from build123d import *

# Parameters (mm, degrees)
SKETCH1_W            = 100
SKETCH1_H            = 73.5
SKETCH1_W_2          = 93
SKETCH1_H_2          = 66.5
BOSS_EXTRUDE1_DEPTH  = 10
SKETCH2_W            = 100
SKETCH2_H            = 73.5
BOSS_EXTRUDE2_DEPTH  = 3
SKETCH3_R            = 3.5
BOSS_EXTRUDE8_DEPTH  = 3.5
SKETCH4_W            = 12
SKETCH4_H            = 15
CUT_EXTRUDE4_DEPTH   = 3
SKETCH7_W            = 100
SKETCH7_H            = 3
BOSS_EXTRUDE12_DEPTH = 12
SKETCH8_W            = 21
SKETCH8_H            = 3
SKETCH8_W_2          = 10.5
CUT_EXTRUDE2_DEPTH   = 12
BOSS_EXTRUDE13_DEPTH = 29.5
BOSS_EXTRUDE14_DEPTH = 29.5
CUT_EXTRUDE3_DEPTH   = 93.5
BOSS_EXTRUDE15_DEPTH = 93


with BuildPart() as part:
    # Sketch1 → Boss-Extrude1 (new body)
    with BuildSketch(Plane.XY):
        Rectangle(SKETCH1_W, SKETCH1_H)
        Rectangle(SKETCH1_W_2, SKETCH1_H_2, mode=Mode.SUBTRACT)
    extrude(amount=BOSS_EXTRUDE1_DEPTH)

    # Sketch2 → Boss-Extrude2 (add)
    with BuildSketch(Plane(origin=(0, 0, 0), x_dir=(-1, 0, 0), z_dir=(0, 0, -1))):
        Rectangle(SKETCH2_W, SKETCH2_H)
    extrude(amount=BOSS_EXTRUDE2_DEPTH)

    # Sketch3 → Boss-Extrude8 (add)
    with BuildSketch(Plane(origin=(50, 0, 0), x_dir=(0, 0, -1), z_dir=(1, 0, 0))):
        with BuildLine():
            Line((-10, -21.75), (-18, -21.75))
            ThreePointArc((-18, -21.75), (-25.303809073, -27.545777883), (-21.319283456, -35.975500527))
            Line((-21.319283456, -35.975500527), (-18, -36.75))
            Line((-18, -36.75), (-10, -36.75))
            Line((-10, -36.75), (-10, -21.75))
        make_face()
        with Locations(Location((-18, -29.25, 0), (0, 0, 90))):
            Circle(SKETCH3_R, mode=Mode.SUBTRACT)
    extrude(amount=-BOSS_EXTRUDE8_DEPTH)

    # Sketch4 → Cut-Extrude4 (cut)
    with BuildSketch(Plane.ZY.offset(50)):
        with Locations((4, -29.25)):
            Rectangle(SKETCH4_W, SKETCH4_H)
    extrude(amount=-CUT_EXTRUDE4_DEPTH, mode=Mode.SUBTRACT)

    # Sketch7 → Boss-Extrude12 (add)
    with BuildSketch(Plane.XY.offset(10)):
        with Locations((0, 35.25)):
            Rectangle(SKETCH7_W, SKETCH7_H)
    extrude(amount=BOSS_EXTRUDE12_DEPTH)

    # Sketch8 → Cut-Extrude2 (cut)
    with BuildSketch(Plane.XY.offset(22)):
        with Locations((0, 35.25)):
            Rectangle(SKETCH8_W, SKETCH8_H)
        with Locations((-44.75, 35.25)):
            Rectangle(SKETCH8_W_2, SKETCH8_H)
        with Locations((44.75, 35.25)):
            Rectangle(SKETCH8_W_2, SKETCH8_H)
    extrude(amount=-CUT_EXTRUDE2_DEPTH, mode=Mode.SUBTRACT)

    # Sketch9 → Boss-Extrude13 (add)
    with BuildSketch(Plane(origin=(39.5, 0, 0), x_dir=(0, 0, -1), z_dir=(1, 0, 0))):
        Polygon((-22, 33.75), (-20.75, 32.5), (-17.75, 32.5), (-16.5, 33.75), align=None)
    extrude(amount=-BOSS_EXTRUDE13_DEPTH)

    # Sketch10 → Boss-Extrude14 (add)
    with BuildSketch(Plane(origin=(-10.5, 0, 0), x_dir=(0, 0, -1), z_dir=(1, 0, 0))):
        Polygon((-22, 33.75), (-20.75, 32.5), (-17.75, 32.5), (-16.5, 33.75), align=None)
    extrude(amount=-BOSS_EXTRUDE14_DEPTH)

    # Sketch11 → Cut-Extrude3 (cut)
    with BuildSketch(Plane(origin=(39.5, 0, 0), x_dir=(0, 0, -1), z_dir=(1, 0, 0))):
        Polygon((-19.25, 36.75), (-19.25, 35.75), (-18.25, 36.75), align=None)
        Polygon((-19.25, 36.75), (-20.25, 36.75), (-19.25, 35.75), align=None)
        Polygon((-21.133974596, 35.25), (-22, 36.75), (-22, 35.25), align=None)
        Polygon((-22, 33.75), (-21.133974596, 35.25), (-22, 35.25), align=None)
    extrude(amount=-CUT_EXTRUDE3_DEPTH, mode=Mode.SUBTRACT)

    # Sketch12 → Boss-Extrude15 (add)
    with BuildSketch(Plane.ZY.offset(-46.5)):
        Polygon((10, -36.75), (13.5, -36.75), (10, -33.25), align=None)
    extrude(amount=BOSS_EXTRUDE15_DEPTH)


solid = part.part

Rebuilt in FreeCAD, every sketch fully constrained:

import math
import FreeCAD as App
import Part
import Sketcher
from FreeCAD import Vector
Q = App.Units.Quantity

doc = App.newDocument("Part")
params = doc.addObject("Spreadsheet::Sheet", "Params")
for row, (alias, value) in enumerate([
    ("sketch1_width", "100 mm"),
    ("sketch1_width2", "93 mm"),
    ("sketch1_height", "73.5 mm"),
    ("sketch1_height2", "66.5 mm"),
    ("pad1_length", "10 mm"),
    ("sketch2_width", "100 mm"),
    ("sketch2_height", "73.5 mm"),
    ("pad2_length", "3 mm"),
    ("sketch3_diameter", "7 mm"),
    ("sketch3_radius", "7.5 mm"),
    ("sketch3_width", "15 mm"),
    ("sketch3_height", "8 mm"),
    ("pad3_length", "3.5 mm"),
    ("sketch4_width", "15 mm"),
    ("sketch4_height", "12 mm"),
    ("pocket1_length", "3 mm"),
    ("sketch5_width", "100 mm"),
    ("sketch5_height", "3 mm"),
    ("pad4_length", "12 mm"),
    ("sketch6_width", "21 mm"),
    ("sketch6_height", "3 mm"),
    ("sketch6_width2", "10.5 mm"),
    ("pocket2_length", "12 mm"),
    ("sketch7_height", "3 mm"),
    ("sketch7_height2", "5.5 mm"),
    ("pad5_length", "29.5 mm"),
    ("sketch8_height", "3 mm"),
    ("sketch8_height2", "5.5 mm"),
    ("pad6_length", "29.5 mm"),
    ("sketch9_width", "3 mm"),
    ("sketch9_height", "2 mm"),
    ("pocket3_length", "93.5 mm"),
    ("sketch10_width", "3.5 mm"),
    ("pad7_length", "93 mm"),
], start=1):
    params.set(f"A{row}", alias)
    params.set(f"B{row}", "=" + value)
    params.setAlias(f"B{row}", alias)

body = doc.addObject("PartDesign::Body", "Body")

# Sketch on XY plane
sketch1 = doc.addObject("Sketcher::SketchObject", "Sketch")
body.addObject(sketch1)
sketch1.AttachmentSupport = (doc.XY_Plane, [""])
sketch1.MapMode = "FlatFace"
sketch1.addGeometry(Part.LineSegment(Vector(-50, 37, 0), Vector(-50, -37, 0)), False)
sketch1.addGeometry(Part.LineSegment(Vector(-50, -37, 0), Vector(50, -37, 0)), False)
sketch1.addGeometry(Part.LineSegment(Vector(50, -37, 0), Vector(50, 37, 0)), False)
sketch1.addGeometry(Part.LineSegment(Vector(50, 37, 0), Vector(-50, 37, 0)), False)
sketch1.addGeometry(Part.LineSegment(Vector(46, -33, 0), Vector(-46, -33, 0)), False)
sketch1.addGeometry(Part.LineSegment(Vector(-46, -33, 0), Vector(-46, 33, 0)), False)
sketch1.addGeometry(Part.LineSegment(Vector(-46, 33, 0), Vector(46, 33, 0)), False)
sketch1.addGeometry(Part.LineSegment(Vector(46, 33, 0), Vector(46, -33, 0)), False)
sketch1.addConstraint(Sketcher.Constraint("Coincident", 0, 2, 1, 1))
sketch1.addConstraint(Sketcher.Constraint("Coincident", 1, 2, 2, 1))
sketch1.addConstraint(Sketcher.Constraint("Coincident", 2, 2, 3, 1))
sketch1.addConstraint(Sketcher.Constraint("Coincident", 3, 2, 0, 1))
sketch1.addConstraint(Sketcher.Constraint("Coincident", 4, 2, 5, 1))
sketch1.addConstraint(Sketcher.Constraint("Coincident", 5, 2, 6, 1))
sketch1.addConstraint(Sketcher.Constraint("Coincident", 6, 2, 7, 1))
sketch1.addConstraint(Sketcher.Constraint("Coincident", 7, 2, 4, 1))
sketch1.addConstraint(Sketcher.Constraint("Vertical", 0))
sketch1.addConstraint(Sketcher.Constraint("Horizontal", 1))
sketch1.addConstraint(Sketcher.Constraint("Vertical", 2))
sketch1.addConstraint(Sketcher.Constraint("Horizontal", 3))
sketch1.addConstraint(Sketcher.Constraint("Horizontal", 4))
sketch1.addConstraint(Sketcher.Constraint("Vertical", 5))
sketch1.addConstraint(Sketcher.Constraint("Horizontal", 6))
sketch1.addConstraint(Sketcher.Constraint("Vertical", 7))
sketch1.addConstraint(Sketcher.Constraint("Symmetric", 0, 2, 2, 2, -1, 1))
sketch1.addConstraint(Sketcher.Constraint("Symmetric", 4, 2, 6, 2, -1, 1))
sketch1.addConstraint(Sketcher.Constraint("DistanceX", 1, 1, 1, 2, Q("100 mm")))
sketch1.addConstraint(Sketcher.Constraint("DistanceX", 4, 2, 4, 1, Q("93 mm")))
sketch1.addConstraint(Sketcher.Constraint("DistanceY", 0, 2, 0, 1, Q("73.5 mm")))
sketch1.addConstraint(Sketcher.Constraint("DistanceY", 5, 1, 5, 2, Q("66.5 mm")))
sketch1.setExpression("Constraints[18]", "Params.sketch1_width")
sketch1.setExpression("Constraints[19]", "Params.sketch1_width2")
sketch1.setExpression("Constraints[20]", "Params.sketch1_height")
sketch1.setExpression("Constraints[21]", "Params.sketch1_height2")
pad1 = doc.addObject("PartDesign::Pad", "Pad")
body.addObject(pad1)
pad1.Profile = sketch1
pad1.setExpression("Length", "Params.pad1_length")

# Sketch on XY plane
sketch2 = doc.addObject("Sketcher::SketchObject", "Sketch001")
body.addObject(sketch2)
sketch2.AttachmentSupport = (doc.XY_Plane, [""])
sketch2.MapMode = "FlatFace"
sketch2.addGeometry(Part.LineSegment(Vector(50, 37, 0), Vector(50, -37, 0)), False)
sketch2.addGeometry(Part.LineSegment(Vector(50, -37, 0), Vector(-50, -37, 0)), False)
sketch2.addGeometry(Part.LineSegment(Vector(-50, -37, 0), Vector(-50, 37, 0)), False)
sketch2.addGeometry(Part.LineSegment(Vector(-50, 37, 0), Vector(50, 37, 0)), False)
sketch2.addConstraint(Sketcher.Constraint("Coincident", 0, 2, 1, 1))
sketch2.addConstraint(Sketcher.Constraint("Coincident", 1, 2, 2, 1))
sketch2.addConstraint(Sketcher.Constraint("Coincident", 2, 2, 3, 1))
sketch2.addConstraint(Sketcher.Constraint("Coincident", 3, 2, 0, 1))
sketch2.addConstraint(Sketcher.Constraint("Vertical", 0))
sketch2.addConstraint(Sketcher.Constraint("Horizontal", 1))
sketch2.addConstraint(Sketcher.Constraint("Vertical", 2))
sketch2.addConstraint(Sketcher.Constraint("Horizontal", 3))
sketch2.addConstraint(Sketcher.Constraint("Symmetric", 0, 2, 2, 2, -1, 1))
sketch2.addConstraint(Sketcher.Constraint("DistanceX", 1, 2, 1, 1, Q("100 mm")))
sketch2.addConstraint(Sketcher.Constraint("DistanceY", 0, 2, 0, 1, Q("73.5 mm")))
sketch2.setExpression("Constraints[9]", "Params.sketch2_width")
sketch2.setExpression("Constraints[10]", "Params.sketch2_height")
pad2 = doc.addObject("PartDesign::Pad", "Pad001")
body.addObject(pad2)
pad2.Profile = sketch2
pad2.setExpression("Length", "Params.pad2_length")
pad2.Reversed = True

# Sketch on YZ plane
sketch3 = doc.addObject("Sketcher::SketchObject", "Sketch002")
body.addObject(sketch3)
sketch3.AttachmentSupport = (doc.YZ_Plane, [""])
sketch3.MapMode = "FlatFace"
sketch3.AttachmentOffset = App.Placement(Vector(0, 0, 50), App.Rotation())
sketch3.addGeometry(Part.LineSegment(Vector(-21.8, 10, 0), Vector(-21.8, 18, 0)), False)
sketch3.addGeometry(Part.ArcOfCircle(Part.Circle(Vector(-29.2, 18, 0), Vector(0, 0, 1), 7.5), math.radians(0), math.radians(154)), False)
sketch3.addGeometry(Part.LineSegment(Vector(-36, 21.3, 0), Vector(-36.8, 18, 0)), False)
sketch3.addGeometry(Part.LineSegment(Vector(-36.8, 18, 0), Vector(-36.8, 10, 0)), False)
sketch3.addGeometry(Part.LineSegment(Vector(-36.8, 10, 0), Vector(-21.8, 10, 0)), False)
sketch3.addGeometry(Part.Circle(Vector(-29.2, 18, 0), Vector(0, 0, 1), 3.5), False)
sketch3.addConstraint(Sketcher.Constraint("Tangent", 0, 2, 1, 1))
sketch3.addConstraint(Sketcher.Constraint("Coincident", 1, 2, 2, 1))
sketch3.addConstraint(Sketcher.Constraint("Coincident", 2, 2, 3, 1))
sketch3.addConstraint(Sketcher.Constraint("Coincident", 3, 2, 4, 1))
sketch3.addConstraint(Sketcher.Constraint("Coincident", 4, 2, 0, 1))
sketch3.addConstraint(Sketcher.Constraint("Vertical", 0))
sketch3.addConstraint(Sketcher.Constraint("Vertical", 3))
sketch3.addConstraint(Sketcher.Constraint("Horizontal", 4))
sketch3.addConstraint(Sketcher.Constraint("Coincident", 5, 3, 1, 3))
sketch3.addConstraint(Sketcher.Constraint("Horizontal", 0, 2, 2, 2))
sketch3.addConstraint(Sketcher.Constraint("Diameter", 5, Q("7 mm")))
sketch3.addConstraint(Sketcher.Constraint("Radius", 1, Q("7.5 mm")))
sketch3.addConstraint(Sketcher.Constraint("DistanceX", 4, 1, 4, 2, Q("15 mm")))
sketch3.addConstraint(Sketcher.Constraint("DistanceY", 0, 1, 0, 2, Q("8 mm")))
sketch3.addConstraint(Sketcher.Constraint("DistanceY", -1, 1, 1, 3, Q("18 mm")))
sketch3.addConstraint(Sketcher.Constraint("DistanceX", 1, 3, -1, 1, Q("29.25 mm")))
sketch3.addConstraint(Sketcher.Constraint("DistanceX", 1, 2, -1, 1, Q("35.975501 mm")))
sketch3.setExpression("Constraints[10]", "Params.sketch3_diameter")
sketch3.setExpression("Constraints[11]", "Params.sketch3_radius")
sketch3.setExpression("Constraints[12]", "Params.sketch3_width")
sketch3.setExpression("Constraints[13]", "Params.sketch3_height")
pad3 = doc.addObject("PartDesign::Pad", "Pad002")
body.addObject(pad3)
pad3.Profile = sketch3
pad3.setExpression("Length", "Params.pad3_length")
pad3.Reversed = True

# Sketch on YZ plane
sketch4 = doc.addObject("Sketcher::SketchObject", "Sketch003")
body.addObject(sketch4)
sketch4.AttachmentSupport = (doc.YZ_Plane, [""])
sketch4.MapMode = "FlatFace"
sketch4.AttachmentOffset = App.Placement(Vector(0, 0, -50), App.Rotation())
sketch4.addGeometry(Part.LineSegment(Vector(-22, -2, 0), Vector(-37, -2, 0)), False)
sketch4.addGeometry(Part.LineSegment(Vector(-37, -2, 0), Vector(-37, 10, 0)), False)
sketch4.addGeometry(Part.LineSegment(Vector(-37, 10, 0), Vector(-22, 10, 0)), False)
sketch4.addGeometry(Part.LineSegment(Vector(-22, 10, 0), Vector(-22, -2, 0)), False)
sketch4.addConstraint(Sketcher.Constraint("Coincident", 0, 2, 1, 1))
sketch4.addConstraint(Sketcher.Constraint("Coincident", 1, 2, 2, 1))
sketch4.addConstraint(Sketcher.Constraint("Coincident", 2, 2, 3, 1))
sketch4.addConstraint(Sketcher.Constraint("Coincident", 3, 2, 0, 1))
sketch4.addConstraint(Sketcher.Constraint("Horizontal", 0))
sketch4.addConstraint(Sketcher.Constraint("Vertical", 1))
sketch4.addConstraint(Sketcher.Constraint("Horizontal", 2))
sketch4.addConstraint(Sketcher.Constraint("Vertical", 3))
sketch4.addConstraint(Sketcher.Constraint("DistanceX", 0, 2, 0, 1, Q("15 mm")))
sketch4.addConstraint(Sketcher.Constraint("DistanceY", 1, 1, 1, 2, Q("12 mm")))
sketch4.addConstraint(Sketcher.Constraint("DistanceY", 0, 2, -1, 1, Q("2 mm")))
sketch4.addConstraint(Sketcher.Constraint("DistanceX", 0, 2, -1, 1, Q("36.75 mm")))
sketch4.setExpression("Constraints[8]", "Params.sketch4_width")
sketch4.setExpression("Constraints[9]", "Params.sketch4_height")
pocket1 = doc.addObject("PartDesign::Pocket", "Pocket")
body.addObject(pocket1)
pocket1.Profile = sketch4
pocket1.setExpression("Length", "Params.pocket1_length")
pocket1.Reversed = True

# Sketch on XY plane
sketch5 = doc.addObject("Sketcher::SketchObject", "Sketch004")
body.addObject(sketch5)
sketch5.AttachmentSupport = (doc.XY_Plane, [""])
sketch5.MapMode = "FlatFace"
sketch5.AttachmentOffset = App.Placement(Vector(0, 0, 10), App.Rotation())
sketch5.addGeometry(Part.LineSegment(Vector(-50, 36.8, 0), Vector(-50, 33.8, 0)), False)
sketch5.addGeometry(Part.LineSegment(Vector(-50, 33.8, 0), Vector(50, 33.8, 0)), False)
sketch5.addGeometry(Part.LineSegment(Vector(50, 33.8, 0), Vector(50, 36.8, 0)), False)
sketch5.addGeometry(Part.LineSegment(Vector(50, 36.8, 0), Vector(-50, 36.8, 0)), False)
sketch5.addConstraint(Sketcher.Constraint("Coincident", 0, 2, 1, 1))
sketch5.addConstraint(Sketcher.Constraint("Coincident", 1, 2, 2, 1))
sketch5.addConstraint(Sketcher.Constraint("Coincident", 2, 2, 3, 1))
sketch5.addConstraint(Sketcher.Constraint("Coincident", 3, 2, 0, 1))
sketch5.addConstraint(Sketcher.Constraint("Vertical", 0))
sketch5.addConstraint(Sketcher.Constraint("Horizontal", 1))
sketch5.addConstraint(Sketcher.Constraint("Vertical", 2))
sketch5.addConstraint(Sketcher.Constraint("Horizontal", 3))
sketch5.addConstraint(Sketcher.Constraint("DistanceX", 1, 1, 1, 2, Q("100 mm")))
sketch5.addConstraint(Sketcher.Constraint("DistanceY", 0, 2, 0, 1, Q("3 mm")))
sketch5.addConstraint(Sketcher.Constraint("DistanceX", 0, 2, -1, 1, Q("50 mm")))
sketch5.addConstraint(Sketcher.Constraint("DistanceY", -1, 1, 0, 2, Q("33.75 mm")))
sketch5.setExpression("Constraints[8]", "Params.sketch5_width")
sketch5.setExpression("Constraints[9]", "Params.sketch5_height")
pad4 = doc.addObject("PartDesign::Pad", "Pad003")
body.addObject(pad4)
pad4.Profile = sketch5
pad4.setExpression("Length", "Params.pad4_length")

# Sketch on XY plane
sketch6 = doc.addObject("Sketcher::SketchObject", "Sketch005")
body.addObject(sketch6)
sketch6.AttachmentSupport = (doc.XY_Plane, [""])
sketch6.MapMode = "FlatFace"
sketch6.AttachmentOffset = App.Placement(Vector(0, 0, 22), App.Rotation())
sketch6.addGeometry(Part.LineSegment(Vector(-10.5, 36.8, 0), Vector(-10.5, 33.8, 0)), False)
sketch6.addGeometry(Part.LineSegment(Vector(-10.5, 33.8, 0), Vector(10.5, 33.8, 0)), False)
sketch6.addGeometry(Part.LineSegment(Vector(10.5, 33.8, 0), Vector(10.5, 36.8, 0)), False)
sketch6.addGeometry(Part.LineSegment(Vector(10.5, 36.8, 0), Vector(-10.5, 36.8, 0)), False)
sketch6.addGeometry(Part.LineSegment(Vector(-50, 36.8, 0), Vector(-50, 33.8, 0)), False)
sketch6.addGeometry(Part.LineSegment(Vector(-50, 33.8, 0), Vector(-39.5, 33.8, 0)), False)
sketch6.addGeometry(Part.LineSegment(Vector(-39.5, 33.8, 0), Vector(-39.5, 36.8, 0)), False)
sketch6.addGeometry(Part.LineSegment(Vector(-39.5, 36.8, 0), Vector(-50, 36.8, 0)), False)
sketch6.addGeometry(Part.LineSegment(Vector(39.5, 36.8, 0), Vector(39.5, 33.8, 0)), False)
sketch6.addGeometry(Part.LineSegment(Vector(39.5, 33.8, 0), Vector(50, 33.8, 0)), False)
sketch6.addGeometry(Part.LineSegment(Vector(50, 33.8, 0), Vector(50, 36.8, 0)), False)
sketch6.addGeometry(Part.LineSegment(Vector(50, 36.8, 0), Vector(39.5, 36.8, 0)), False)
sketch6.addConstraint(Sketcher.Constraint("Coincident", 0, 2, 1, 1))
sketch6.addConstraint(Sketcher.Constraint("Coincident", 1, 2, 2, 1))
sketch6.addConstraint(Sketcher.Constraint("Coincident", 2, 2, 3, 1))
sketch6.addConstraint(Sketcher.Constraint("Coincident", 3, 2, 0, 1))
sketch6.addConstraint(Sketcher.Constraint("Coincident", 4, 2, 5, 1))
sketch6.addConstraint(Sketcher.Constraint("Coincident", 5, 2, 6, 1))
sketch6.addConstraint(Sketcher.Constraint("Coincident", 6, 2, 7, 1))
sketch6.addConstraint(Sketcher.Constraint("Coincident", 7, 2, 4, 1))
sketch6.addConstraint(Sketcher.Constraint("Coincident", 8, 2, 9, 1))
sketch6.addConstraint(Sketcher.Constraint("Coincident", 9, 2, 10, 1))
sketch6.addConstraint(Sketcher.Constraint("Coincident", 10, 2, 11, 1))
sketch6.addConstraint(Sketcher.Constraint("Coincident", 11, 2, 8, 1))
sketch6.addConstraint(Sketcher.Constraint("Vertical", 0))
sketch6.addConstraint(Sketcher.Constraint("Horizontal", 1))
sketch6.addConstraint(Sketcher.Constraint("Vertical", 2))
sketch6.addConstraint(Sketcher.Constraint("Horizontal", 3))
sketch6.addConstraint(Sketcher.Constraint("Vertical", 4))
sketch6.addConstraint(Sketcher.Constraint("Horizontal", 5))
sketch6.addConstraint(Sketcher.Constraint("Vertical", 6))
sketch6.addConstraint(Sketcher.Constraint("Horizontal", 7))
sketch6.addConstraint(Sketcher.Constraint("Vertical", 8))
sketch6.addConstraint(Sketcher.Constraint("Horizontal", 9))
sketch6.addConstraint(Sketcher.Constraint("Vertical", 10))
sketch6.addConstraint(Sketcher.Constraint("Horizontal", 11))
sketch6.addConstraint(Sketcher.Constraint("Symmetric", 5, 2, 8, 2, -2))
sketch6.addConstraint(Sketcher.Constraint("Symmetric", 7, 2, 10, 2, -2))
sketch6.addConstraint(Sketcher.Constraint("Horizontal", 1, 2, 4, 2))
sketch6.addConstraint(Sketcher.Constraint("Horizontal", 3, 2, 6, 2))
sketch6.addConstraint(Sketcher.Constraint("DistanceX", 1, 1, 1, 2, Q("21 mm")))
sketch6.addConstraint(Sketcher.Constraint("DistanceY", 0, 2, 0, 1, Q("3 mm")))
sketch6.addConstraint(Sketcher.Constraint("DistanceX", 5, 1, 5, 2, Q("10.5 mm")))
sketch6.addConstraint(Sketcher.Constraint("DistanceX", 4, 2, -1, 1, Q("50 mm")))
sketch6.addConstraint(Sketcher.Constraint("DistanceX", 5, 2, 0, 2, Q("29 mm")))
sketch6.addConstraint(Sketcher.Constraint("DistanceY", -1, 1, 0, 2, Q("33.75 mm")))
sketch6.setExpression("Constraints[28]", "Params.sketch6_width")
sketch6.setExpression("Constraints[29]", "Params.sketch6_height")
sketch6.setExpression("Constraints[30]", "Params.sketch6_width2")
pocket2 = doc.addObject("PartDesign::Pocket", "Pocket001")
body.addObject(pocket2)
pocket2.Profile = sketch6
pocket2.setExpression("Length", "Params.pocket2_length")

# Sketch on YZ plane
sketch7 = doc.addObject("Sketcher::SketchObject", "Sketch006")
body.addObject(sketch7)
sketch7.AttachmentSupport = (doc.YZ_Plane, [""])
sketch7.MapMode = "FlatFace"
sketch7.AttachmentOffset = App.Placement(Vector(0, 0, 39.5), App.Rotation())
sketch7.addGeometry(Part.LineSegment(Vector(33.8, 22, 0), Vector(32.5, 20.8, 0)), False)
sketch7.addGeometry(Part.LineSegment(Vector(32.5, 20.8, 0), Vector(32.5, 17.8, 0)), False)
sketch7.addGeometry(Part.LineSegment(Vector(32.5, 17.8, 0), Vector(33.8, 16.5, 0)), False)
sketch7.addGeometry(Part.LineSegment(Vector(33.8, 16.5, 0), Vector(33.8, 22, 0)), False)
sketch7.addConstraint(Sketcher.Constraint("Coincident", 0, 2, 1, 1))
sketch7.addConstraint(Sketcher.Constraint("Coincident", 1, 2, 2, 1))
sketch7.addConstraint(Sketcher.Constraint("Coincident", 2, 2, 3, 1))
sketch7.addConstraint(Sketcher.Constraint("Coincident", 3, 2, 0, 1))
sketch7.addConstraint(Sketcher.Constraint("Vertical", 1))
sketch7.addConstraint(Sketcher.Constraint("Vertical", 3))
sketch7.addConstraint(Sketcher.Constraint("Perpendicular", 0, 2))
sketch7.addConstraint(Sketcher.Constraint("Equal", 0, 2))
sketch7.addConstraint(Sketcher.Constraint("DistanceY", 1, 2, 1, 1, Q("3 mm")))
sketch7.addConstraint(Sketcher.Constraint("DistanceY", 3, 1, 3, 2, Q("5.5 mm")))
sketch7.addConstraint(Sketcher.Constraint("DistanceY", -1, 1, 3, 2, Q("22 mm")))
sketch7.addConstraint(Sketcher.Constraint("DistanceX", -1, 1, 0, 2, Q("32.5 mm")))
sketch7.setExpression("Constraints[8]", "Params.sketch7_height")
sketch7.setExpression("Constraints[9]", "Params.sketch7_height2")
pad5 = doc.addObject("PartDesign::Pad", "Pad004")
body.addObject(pad5)
pad5.Profile = sketch7
pad5.setExpression("Length", "Params.pad5_length")
pad5.Reversed = True

# Sketch on YZ plane
sketch8 = doc.addObject("Sketcher::SketchObject", "Sketch007")
body.addObject(sketch8)
sketch8.AttachmentSupport = (doc.YZ_Plane, [""])
sketch8.MapMode = "FlatFace"
sketch8.AttachmentOffset = App.Placement(Vector(0, 0, -10.5), App.Rotation())
sketch8.addGeometry(Part.LineSegment(Vector(33.8, 22, 0), Vector(32.5, 20.8, 0)), False)
sketch8.addGeometry(Part.LineSegment(Vector(32.5, 20.8, 0), Vector(32.5, 17.8, 0)), False)
sketch8.addGeometry(Part.LineSegment(Vector(32.5, 17.8, 0), Vector(33.8, 16.5, 0)), False)
sketch8.addGeometry(Part.LineSegment(Vector(33.8, 16.5, 0), Vector(33.8, 22, 0)), False)
sketch8.addConstraint(Sketcher.Constraint("Coincident", 0, 2, 1, 1))
sketch8.addConstraint(Sketcher.Constraint("Coincident", 1, 2, 2, 1))
sketch8.addConstraint(Sketcher.Constraint("Coincident", 2, 2, 3, 1))
sketch8.addConstraint(Sketcher.Constraint("Coincident", 3, 2, 0, 1))
sketch8.addConstraint(Sketcher.Constraint("Vertical", 1))
sketch8.addConstraint(Sketcher.Constraint("Vertical", 3))
sketch8.addConstraint(Sketcher.Constraint("Perpendicular", 0, 2))
sketch8.addConstraint(Sketcher.Constraint("Equal", 0, 2))
sketch8.addConstraint(Sketcher.Constraint("DistanceY", 1, 2, 1, 1, Q("3 mm")))
sketch8.addConstraint(Sketcher.Constraint("DistanceY", 3, 1, 3, 2, Q("5.5 mm")))
sketch8.addConstraint(Sketcher.Constraint("DistanceY", -1, 1, 3, 2, Q("22 mm")))
sketch8.addConstraint(Sketcher.Constraint("DistanceX", -1, 1, 0, 2, Q("32.5 mm")))
sketch8.setExpression("Constraints[8]", "Params.sketch8_height")
sketch8.setExpression("Constraints[9]", "Params.sketch8_height2")
pad6 = doc.addObject("PartDesign::Pad", "Pad005")
body.addObject(pad6)
pad6.Profile = sketch8
pad6.setExpression("Length", "Params.pad6_length")
pad6.Reversed = True

# Sketch on YZ plane
sketch9 = doc.addObject("Sketcher::SketchObject", "Sketch008")
body.addObject(sketch9)
sketch9.AttachmentSupport = (doc.YZ_Plane, [""])
sketch9.MapMode = "FlatFace"
sketch9.AttachmentOffset = App.Placement(Vector(0, 0, 39.5), App.Rotation())
sketch9.addGeometry(Part.LineSegment(Vector(35.8, 19.2, 0), Vector(36.8, 18.2, 0)), False)
sketch9.addGeometry(Part.LineSegment(Vector(36.8, 18.2, 0), Vector(36.8, 20.2, 0)), False)
sketch9.addGeometry(Part.LineSegment(Vector(36.8, 20.2, 0), Vector(35.8, 19.2, 0)), False)
sketch9.addGeometry(Part.LineSegment(Vector(35.2, 21.1, 0), Vector(36.8, 22, 0)), False)
sketch9.addGeometry(Part.LineSegment(Vector(36.8, 22, 0), Vector(33.8, 22, 0)), False)
sketch9.addGeometry(Part.LineSegment(Vector(33.8, 22, 0), Vector(35.2, 21.1, 0)), False)
sketch9.addConstraint(Sketcher.Constraint("Coincident", 0, 2, 1, 1))
sketch9.addConstraint(Sketcher.Constraint("Coincident", 1, 2, 2, 1))
sketch9.addConstraint(Sketcher.Constraint("Coincident", 2, 2, 0, 1))
sketch9.addConstraint(Sketcher.Constraint("Coincident", 3, 2, 4, 1))
sketch9.addConstraint(Sketcher.Constraint("Coincident", 4, 2, 5, 1))
sketch9.addConstraint(Sketcher.Constraint("Coincident", 5, 2, 3, 1))
sketch9.addConstraint(Sketcher.Constraint("Vertical", 1))
sketch9.addConstraint(Sketcher.Constraint("Horizontal", 4))
sketch9.addConstraint(Sketcher.Constraint("Perpendicular", 0, 2))
sketch9.addConstraint(Sketcher.Constraint("Vertical", 1, 2, 3, 2))
sketch9.addConstraint(Sketcher.Constraint("Equal", 0, 2))
sketch9.addConstraint(Sketcher.Constraint("Equal", 3, 5))
sketch9.addConstraint(Sketcher.Constraint("DistanceX", 4, 2, 4, 1, Q("3 mm")))
sketch9.addConstraint(Sketcher.Constraint("DistanceY", 1, 1, 1, 2, Q("2 mm")))
sketch9.addConstraint(Sketcher.Constraint("Angle", 3, Q("30 deg")))
sketch9.addConstraint(Sketcher.Constraint("DistanceY", -1, 1, 3, 2, Q("22 mm")))
sketch9.addConstraint(Sketcher.Constraint("DistanceX", -1, 1, 0, 2, Q("36.75 mm")))
sketch9.addConstraint(Sketcher.Constraint("DistanceY", -1, 1, 0, 2, Q("18.25 mm")))
sketch9.setExpression("Constraints[12]", "Params.sketch9_width")
sketch9.setExpression("Constraints[13]", "Params.sketch9_height")
pocket3 = doc.addObject("PartDesign::Pocket", "Pocket002")
body.addObject(pocket3)
pocket3.Profile = sketch9
pocket3.setExpression("Length", "Params.pocket3_length")

# Sketch on YZ plane
sketch10 = doc.addObject("Sketcher::SketchObject", "Sketch009")
body.addObject(sketch10)
sketch10.AttachmentSupport = (doc.YZ_Plane, [""])
sketch10.MapMode = "FlatFace"
sketch10.AttachmentOffset = App.Placement(Vector(0, 0, 46.5), App.Rotation())
sketch10.addGeometry(Part.LineSegment(Vector(-36.8, 10, 0), Vector(-36.8, 13.5, 0)), False)
sketch10.addGeometry(Part.LineSegment(Vector(-36.8, 13.5, 0), Vector(-33.2, 10, 0)), False)
sketch10.addGeometry(Part.LineSegment(Vector(-33.2, 10, 0), Vector(-36.8, 10, 0)), False)
sketch10.addConstraint(Sketcher.Constraint("Coincident", 0, 2, 1, 1))
sketch10.addConstraint(Sketcher.Constraint("Coincident", 1, 2, 2, 1))
sketch10.addConstraint(Sketcher.Constraint("Coincident", 2, 2, 0, 1))
sketch10.addConstraint(Sketcher.Constraint("Vertical", 0))
sketch10.addConstraint(Sketcher.Constraint("Horizontal", 2))
sketch10.addConstraint(Sketcher.Constraint("Equal", 2, 0))
sketch10.addConstraint(Sketcher.Constraint("DistanceX", 2, 2, 2, 1, Q("3.5 mm")))
sketch10.addConstraint(Sketcher.Constraint("DistanceY", -1, 1, 1, 2, Q("10 mm")))
sketch10.addConstraint(Sketcher.Constraint("DistanceX", 0, 2, -1, 1, Q("36.75 mm")))
sketch10.setExpression("Constraints[6]", "Params.sketch10_width")
pad7 = doc.addObject("PartDesign::Pad", "Pad006")
body.addObject(pad7)
pad7.Profile = sketch10
pad7.setExpression("Length", "Params.pad7_length")
pad7.Reversed = True

doc.recompute()
